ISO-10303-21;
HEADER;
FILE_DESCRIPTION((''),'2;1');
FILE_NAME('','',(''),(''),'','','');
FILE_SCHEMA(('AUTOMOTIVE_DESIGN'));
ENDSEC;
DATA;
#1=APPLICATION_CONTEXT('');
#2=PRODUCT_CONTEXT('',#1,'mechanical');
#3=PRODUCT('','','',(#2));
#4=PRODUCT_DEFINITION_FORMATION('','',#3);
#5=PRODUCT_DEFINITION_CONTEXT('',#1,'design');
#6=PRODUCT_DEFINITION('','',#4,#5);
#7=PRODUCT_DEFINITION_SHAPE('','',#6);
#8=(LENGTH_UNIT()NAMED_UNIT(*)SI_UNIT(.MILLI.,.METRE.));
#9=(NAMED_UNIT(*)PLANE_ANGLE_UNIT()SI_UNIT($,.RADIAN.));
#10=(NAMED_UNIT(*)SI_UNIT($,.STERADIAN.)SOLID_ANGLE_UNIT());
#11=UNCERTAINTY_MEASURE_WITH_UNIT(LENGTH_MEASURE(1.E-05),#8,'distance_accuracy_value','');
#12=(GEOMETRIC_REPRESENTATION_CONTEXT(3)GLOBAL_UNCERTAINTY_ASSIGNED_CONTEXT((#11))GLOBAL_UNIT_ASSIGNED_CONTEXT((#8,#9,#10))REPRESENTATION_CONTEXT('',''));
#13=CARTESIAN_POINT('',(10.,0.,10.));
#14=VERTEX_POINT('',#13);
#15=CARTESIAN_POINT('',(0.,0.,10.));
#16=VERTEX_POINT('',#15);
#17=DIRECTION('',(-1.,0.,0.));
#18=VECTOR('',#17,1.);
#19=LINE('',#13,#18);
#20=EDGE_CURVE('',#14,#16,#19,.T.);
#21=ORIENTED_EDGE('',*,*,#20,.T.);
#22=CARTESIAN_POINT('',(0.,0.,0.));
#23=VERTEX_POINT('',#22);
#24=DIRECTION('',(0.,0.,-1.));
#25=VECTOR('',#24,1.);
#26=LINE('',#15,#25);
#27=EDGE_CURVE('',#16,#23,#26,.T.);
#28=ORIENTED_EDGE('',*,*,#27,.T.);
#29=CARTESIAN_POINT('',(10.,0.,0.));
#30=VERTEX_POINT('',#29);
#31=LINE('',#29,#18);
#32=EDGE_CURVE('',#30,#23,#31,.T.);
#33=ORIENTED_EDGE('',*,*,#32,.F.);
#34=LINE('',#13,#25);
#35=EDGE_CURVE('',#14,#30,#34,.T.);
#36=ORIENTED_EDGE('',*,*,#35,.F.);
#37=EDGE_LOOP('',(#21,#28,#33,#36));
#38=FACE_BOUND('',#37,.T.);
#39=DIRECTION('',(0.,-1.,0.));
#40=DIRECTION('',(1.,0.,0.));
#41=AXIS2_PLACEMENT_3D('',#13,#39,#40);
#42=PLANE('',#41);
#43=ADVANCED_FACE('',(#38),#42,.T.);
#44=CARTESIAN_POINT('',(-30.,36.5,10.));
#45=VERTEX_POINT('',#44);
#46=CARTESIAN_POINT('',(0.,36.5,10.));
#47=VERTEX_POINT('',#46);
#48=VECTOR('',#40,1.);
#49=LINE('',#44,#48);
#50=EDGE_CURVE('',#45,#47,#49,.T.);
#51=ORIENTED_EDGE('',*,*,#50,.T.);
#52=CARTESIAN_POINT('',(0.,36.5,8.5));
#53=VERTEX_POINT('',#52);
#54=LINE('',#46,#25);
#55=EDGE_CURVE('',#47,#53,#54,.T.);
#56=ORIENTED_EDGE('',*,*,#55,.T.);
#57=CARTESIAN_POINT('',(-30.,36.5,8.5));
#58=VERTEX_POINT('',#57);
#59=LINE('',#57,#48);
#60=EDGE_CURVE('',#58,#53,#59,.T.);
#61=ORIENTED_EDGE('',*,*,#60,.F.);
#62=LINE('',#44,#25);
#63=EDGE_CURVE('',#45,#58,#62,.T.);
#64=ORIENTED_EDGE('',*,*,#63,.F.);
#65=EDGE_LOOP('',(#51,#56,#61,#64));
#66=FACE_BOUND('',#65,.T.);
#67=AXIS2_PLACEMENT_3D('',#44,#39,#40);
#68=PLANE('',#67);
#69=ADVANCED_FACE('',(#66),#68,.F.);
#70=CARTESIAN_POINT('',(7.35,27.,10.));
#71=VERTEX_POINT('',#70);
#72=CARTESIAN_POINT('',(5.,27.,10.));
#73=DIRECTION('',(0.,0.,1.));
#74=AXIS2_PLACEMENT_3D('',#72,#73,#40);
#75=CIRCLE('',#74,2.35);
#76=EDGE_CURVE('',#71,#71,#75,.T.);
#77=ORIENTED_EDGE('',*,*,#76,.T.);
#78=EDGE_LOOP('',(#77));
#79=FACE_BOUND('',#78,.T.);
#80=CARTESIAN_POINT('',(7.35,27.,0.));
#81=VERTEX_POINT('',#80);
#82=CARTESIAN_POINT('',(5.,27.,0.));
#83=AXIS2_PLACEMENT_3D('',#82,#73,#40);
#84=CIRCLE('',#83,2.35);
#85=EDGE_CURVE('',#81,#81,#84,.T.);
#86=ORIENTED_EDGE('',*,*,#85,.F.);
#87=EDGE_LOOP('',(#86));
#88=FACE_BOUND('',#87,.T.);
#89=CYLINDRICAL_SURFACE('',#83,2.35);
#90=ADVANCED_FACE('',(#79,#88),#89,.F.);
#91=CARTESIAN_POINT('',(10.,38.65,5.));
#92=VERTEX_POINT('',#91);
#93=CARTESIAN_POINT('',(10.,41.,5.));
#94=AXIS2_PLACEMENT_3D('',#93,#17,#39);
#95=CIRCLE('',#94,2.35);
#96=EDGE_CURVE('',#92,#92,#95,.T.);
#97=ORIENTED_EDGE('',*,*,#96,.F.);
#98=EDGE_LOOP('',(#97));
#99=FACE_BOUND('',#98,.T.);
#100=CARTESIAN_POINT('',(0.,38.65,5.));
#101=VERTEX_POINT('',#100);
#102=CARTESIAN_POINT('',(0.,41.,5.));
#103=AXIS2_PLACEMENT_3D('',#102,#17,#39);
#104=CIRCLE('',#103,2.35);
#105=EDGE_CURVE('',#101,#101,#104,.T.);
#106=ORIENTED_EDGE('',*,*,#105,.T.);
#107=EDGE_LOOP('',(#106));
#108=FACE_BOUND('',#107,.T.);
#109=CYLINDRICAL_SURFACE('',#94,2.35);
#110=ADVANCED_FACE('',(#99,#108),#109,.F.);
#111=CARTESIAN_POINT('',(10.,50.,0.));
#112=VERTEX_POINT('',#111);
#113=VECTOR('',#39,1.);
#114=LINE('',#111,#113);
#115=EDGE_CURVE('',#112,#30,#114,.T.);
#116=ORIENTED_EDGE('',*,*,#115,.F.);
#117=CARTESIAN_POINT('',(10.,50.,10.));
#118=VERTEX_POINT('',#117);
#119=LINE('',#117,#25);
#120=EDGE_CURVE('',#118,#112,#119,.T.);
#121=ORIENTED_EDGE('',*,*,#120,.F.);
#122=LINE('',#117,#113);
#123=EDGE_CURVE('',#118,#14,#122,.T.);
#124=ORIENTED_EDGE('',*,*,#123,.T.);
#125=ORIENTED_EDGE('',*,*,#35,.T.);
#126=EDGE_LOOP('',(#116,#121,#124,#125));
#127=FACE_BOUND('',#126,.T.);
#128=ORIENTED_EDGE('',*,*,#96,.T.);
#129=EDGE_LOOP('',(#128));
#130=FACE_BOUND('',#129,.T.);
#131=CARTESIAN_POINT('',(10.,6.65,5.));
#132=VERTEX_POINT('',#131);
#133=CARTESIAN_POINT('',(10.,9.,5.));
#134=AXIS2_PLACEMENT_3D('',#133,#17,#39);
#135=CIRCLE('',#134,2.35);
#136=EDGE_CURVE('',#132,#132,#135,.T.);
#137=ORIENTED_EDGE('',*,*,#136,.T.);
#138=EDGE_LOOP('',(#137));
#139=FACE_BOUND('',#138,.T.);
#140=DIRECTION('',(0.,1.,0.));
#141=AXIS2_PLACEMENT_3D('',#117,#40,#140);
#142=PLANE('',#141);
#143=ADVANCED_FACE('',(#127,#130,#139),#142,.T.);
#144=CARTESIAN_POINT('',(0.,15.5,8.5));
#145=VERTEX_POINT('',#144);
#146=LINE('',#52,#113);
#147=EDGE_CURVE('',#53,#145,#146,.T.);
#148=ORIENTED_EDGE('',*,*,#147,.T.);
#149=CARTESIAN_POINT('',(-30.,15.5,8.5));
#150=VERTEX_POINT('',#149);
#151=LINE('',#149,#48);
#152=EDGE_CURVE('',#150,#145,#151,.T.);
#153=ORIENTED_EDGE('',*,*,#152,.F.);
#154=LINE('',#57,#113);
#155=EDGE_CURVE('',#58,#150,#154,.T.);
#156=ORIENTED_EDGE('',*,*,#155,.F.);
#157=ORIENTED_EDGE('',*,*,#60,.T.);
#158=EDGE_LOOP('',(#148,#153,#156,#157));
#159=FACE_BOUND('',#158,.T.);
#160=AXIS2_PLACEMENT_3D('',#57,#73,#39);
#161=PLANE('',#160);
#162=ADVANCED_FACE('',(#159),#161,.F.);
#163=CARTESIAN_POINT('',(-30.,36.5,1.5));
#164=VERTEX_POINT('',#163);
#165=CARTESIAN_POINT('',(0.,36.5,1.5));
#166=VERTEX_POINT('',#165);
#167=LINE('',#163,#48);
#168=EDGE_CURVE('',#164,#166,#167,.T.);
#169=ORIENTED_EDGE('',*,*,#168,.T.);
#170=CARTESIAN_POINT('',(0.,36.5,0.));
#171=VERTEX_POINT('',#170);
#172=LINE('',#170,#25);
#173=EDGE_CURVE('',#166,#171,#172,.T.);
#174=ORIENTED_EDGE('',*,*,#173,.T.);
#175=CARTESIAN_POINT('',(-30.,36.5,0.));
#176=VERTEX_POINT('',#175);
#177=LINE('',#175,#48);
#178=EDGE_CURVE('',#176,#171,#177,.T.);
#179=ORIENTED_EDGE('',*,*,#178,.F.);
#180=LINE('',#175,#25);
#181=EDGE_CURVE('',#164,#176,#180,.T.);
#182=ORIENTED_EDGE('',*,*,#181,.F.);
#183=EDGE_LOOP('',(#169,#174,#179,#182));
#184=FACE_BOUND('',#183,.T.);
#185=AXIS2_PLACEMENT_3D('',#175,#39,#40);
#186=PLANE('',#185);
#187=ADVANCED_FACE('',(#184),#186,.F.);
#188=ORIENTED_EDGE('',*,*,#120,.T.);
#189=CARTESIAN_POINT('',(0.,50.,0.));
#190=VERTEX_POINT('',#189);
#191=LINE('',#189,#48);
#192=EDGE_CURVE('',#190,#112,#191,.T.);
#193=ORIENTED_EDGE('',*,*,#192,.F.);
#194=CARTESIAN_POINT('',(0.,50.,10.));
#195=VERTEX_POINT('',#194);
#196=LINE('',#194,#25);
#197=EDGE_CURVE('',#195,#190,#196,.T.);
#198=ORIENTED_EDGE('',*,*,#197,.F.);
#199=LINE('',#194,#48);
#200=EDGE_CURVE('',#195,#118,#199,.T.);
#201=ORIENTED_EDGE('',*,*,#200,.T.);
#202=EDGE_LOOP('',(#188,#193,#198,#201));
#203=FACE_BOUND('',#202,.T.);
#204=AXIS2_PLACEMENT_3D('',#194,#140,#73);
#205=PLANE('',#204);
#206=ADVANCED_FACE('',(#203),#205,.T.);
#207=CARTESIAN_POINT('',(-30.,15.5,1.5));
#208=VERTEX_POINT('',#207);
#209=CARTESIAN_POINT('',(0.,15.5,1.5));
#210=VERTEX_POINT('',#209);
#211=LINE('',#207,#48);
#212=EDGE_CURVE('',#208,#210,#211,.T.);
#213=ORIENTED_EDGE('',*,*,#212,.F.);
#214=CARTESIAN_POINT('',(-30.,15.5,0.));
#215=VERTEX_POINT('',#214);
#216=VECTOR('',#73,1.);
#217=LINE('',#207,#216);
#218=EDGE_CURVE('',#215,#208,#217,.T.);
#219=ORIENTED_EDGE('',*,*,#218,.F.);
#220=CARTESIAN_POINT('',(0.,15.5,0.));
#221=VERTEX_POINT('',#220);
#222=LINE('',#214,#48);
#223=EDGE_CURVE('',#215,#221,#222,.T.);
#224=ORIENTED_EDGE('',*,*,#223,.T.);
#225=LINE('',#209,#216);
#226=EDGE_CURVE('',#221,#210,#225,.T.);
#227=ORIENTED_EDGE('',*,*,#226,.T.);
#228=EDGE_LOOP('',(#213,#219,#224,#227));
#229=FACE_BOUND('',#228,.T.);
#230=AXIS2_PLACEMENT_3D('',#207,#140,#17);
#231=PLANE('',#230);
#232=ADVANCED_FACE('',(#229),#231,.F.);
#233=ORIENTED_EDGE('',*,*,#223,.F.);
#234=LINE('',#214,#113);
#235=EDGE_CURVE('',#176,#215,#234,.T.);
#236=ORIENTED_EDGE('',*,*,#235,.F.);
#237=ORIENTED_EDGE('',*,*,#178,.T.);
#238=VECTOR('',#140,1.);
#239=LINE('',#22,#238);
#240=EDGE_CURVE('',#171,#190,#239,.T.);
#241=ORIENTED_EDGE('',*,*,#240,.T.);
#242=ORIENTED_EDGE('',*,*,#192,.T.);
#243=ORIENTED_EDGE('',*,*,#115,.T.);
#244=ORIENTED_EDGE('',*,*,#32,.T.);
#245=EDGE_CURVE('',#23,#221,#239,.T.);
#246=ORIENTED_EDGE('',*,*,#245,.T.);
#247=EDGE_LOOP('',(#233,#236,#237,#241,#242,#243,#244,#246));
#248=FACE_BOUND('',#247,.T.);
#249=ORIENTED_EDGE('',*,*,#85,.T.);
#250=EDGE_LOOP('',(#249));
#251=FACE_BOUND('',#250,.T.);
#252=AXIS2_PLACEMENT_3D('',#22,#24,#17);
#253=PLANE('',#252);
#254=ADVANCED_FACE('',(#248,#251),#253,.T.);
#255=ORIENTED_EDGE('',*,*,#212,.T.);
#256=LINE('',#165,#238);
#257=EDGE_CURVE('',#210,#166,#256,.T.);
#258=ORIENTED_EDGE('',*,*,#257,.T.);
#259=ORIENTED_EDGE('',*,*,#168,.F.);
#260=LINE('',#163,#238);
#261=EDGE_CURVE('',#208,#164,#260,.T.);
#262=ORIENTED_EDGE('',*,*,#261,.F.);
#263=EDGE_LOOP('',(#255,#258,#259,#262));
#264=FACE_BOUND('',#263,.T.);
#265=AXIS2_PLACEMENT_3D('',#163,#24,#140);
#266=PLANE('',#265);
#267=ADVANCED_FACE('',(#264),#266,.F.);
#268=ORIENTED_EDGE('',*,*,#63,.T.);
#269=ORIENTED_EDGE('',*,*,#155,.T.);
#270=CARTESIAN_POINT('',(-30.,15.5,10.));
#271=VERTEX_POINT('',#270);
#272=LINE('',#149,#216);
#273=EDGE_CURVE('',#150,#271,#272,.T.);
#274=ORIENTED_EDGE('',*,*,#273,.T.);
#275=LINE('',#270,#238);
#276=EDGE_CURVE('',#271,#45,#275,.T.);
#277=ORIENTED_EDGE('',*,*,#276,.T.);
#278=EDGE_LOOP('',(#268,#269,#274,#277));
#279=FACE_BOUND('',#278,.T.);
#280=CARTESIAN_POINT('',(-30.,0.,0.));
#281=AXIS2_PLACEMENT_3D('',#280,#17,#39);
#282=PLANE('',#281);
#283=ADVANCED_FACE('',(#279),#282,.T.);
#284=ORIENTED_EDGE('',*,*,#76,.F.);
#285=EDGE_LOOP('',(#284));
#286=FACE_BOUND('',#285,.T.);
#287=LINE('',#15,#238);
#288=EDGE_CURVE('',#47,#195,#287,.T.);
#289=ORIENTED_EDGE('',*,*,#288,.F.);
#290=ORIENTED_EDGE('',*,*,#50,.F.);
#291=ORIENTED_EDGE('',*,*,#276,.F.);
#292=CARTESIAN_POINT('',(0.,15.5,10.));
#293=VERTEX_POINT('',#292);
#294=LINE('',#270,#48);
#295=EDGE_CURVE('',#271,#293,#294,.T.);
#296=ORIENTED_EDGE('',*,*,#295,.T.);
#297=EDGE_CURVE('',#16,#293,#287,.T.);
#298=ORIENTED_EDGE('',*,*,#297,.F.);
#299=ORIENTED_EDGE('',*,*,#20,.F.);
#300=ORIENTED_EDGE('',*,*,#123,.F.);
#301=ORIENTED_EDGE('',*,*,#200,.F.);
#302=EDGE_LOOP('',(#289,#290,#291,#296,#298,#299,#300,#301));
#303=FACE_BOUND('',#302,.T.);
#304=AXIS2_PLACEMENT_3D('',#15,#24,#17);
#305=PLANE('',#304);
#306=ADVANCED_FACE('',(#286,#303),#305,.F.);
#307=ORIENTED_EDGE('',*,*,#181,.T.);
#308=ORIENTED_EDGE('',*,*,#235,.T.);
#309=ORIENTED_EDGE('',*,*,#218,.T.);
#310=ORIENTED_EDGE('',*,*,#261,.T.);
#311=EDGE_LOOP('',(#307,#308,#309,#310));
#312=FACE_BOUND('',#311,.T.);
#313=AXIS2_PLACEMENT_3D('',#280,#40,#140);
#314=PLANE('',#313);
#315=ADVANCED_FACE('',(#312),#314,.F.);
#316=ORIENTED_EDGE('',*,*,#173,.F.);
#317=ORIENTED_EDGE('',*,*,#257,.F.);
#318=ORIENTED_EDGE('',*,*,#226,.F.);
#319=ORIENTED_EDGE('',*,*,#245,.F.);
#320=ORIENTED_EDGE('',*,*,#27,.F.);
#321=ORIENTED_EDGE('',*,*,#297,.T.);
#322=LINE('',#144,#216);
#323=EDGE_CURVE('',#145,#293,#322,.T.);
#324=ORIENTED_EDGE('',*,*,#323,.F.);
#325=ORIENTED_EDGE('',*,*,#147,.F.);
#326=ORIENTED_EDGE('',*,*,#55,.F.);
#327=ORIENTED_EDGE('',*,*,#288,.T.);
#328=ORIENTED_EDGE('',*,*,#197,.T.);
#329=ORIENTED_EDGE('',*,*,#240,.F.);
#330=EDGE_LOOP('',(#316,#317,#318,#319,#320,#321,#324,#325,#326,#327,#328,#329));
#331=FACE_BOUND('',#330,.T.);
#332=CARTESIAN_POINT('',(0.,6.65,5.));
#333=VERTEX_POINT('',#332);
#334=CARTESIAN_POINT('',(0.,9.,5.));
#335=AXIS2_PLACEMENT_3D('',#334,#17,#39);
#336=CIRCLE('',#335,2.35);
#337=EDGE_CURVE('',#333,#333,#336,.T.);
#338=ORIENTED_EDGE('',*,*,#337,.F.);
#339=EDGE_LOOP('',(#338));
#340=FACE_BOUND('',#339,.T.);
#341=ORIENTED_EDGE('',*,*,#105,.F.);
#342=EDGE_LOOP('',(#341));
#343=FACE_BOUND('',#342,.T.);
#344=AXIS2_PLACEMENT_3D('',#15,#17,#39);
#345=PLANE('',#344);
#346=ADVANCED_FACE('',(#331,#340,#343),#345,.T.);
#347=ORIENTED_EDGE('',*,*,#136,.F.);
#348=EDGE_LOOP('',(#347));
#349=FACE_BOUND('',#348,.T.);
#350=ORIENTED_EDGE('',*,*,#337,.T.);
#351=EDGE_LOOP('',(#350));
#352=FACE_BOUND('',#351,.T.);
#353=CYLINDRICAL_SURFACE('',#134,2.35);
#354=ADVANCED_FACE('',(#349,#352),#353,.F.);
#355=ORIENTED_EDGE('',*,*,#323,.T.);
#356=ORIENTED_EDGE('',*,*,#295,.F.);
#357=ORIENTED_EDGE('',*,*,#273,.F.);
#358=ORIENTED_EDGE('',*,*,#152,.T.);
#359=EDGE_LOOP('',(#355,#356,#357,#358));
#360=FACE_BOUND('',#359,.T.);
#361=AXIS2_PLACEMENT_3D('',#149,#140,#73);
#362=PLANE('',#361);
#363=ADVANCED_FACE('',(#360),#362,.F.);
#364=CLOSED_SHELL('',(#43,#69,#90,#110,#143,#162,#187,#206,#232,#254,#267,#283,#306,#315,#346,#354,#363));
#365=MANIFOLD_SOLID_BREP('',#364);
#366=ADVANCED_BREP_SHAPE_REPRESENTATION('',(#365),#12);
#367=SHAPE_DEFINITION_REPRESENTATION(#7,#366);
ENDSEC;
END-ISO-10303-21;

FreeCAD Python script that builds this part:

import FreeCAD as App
import Part
import Sketcher

doc = App.newDocument("Part")
body = doc.addObject("PartDesign::Body", "Body")

# Sketch on XY plane
sketch1 = body.newObject("Sketcher::SketchObject", "Sketch")
sketch1.AttachmentSupport = (doc.getObject("XY_Plane"), [""])
sketch1.MapMode = "FlatFace"
sketch1.addGeometry([
    Part.LineSegment(App.Vector(0, 50, 0), App.Vector(0, 0, 0)),
    Part.LineSegment(App.Vector(0, 0, 0), App.Vector(10, 0, 0)),
    Part.LineSegment(App.Vector(10, 0, 0), App.Vector(10, 50, 0)),
    Part.LineSegment(App.Vector(10, 50, 0), App.Vector(0, 50, 0)),
], False)
sketch1.addConstraint([
    Sketcher.Constraint("Coincident", 0, 2, 1, 1),
    Sketcher.Constraint("Coincident", 1, 2, 2, 1),
    Sketcher.Constraint("Coincident", 2, 2, 3, 1),
    Sketcher.Constraint("Coincident", 3, 2, 0, 1),
    Sketcher.Constraint("Vertical", 0),
    Sketcher.Constraint("Horizontal", 1),
    Sketcher.Constraint("Vertical", 2),
    Sketcher.Constraint("Horizontal", 3),
    Sketcher.Constraint("Coincident", 0, 2, -1, 1),
    Sketcher.Constraint("DistanceX", 1, 1, 1, 2, 10.0),
    Sketcher.Constraint("DistanceY", 0, 2, 0, 1, 50.0),
])
pad1 = body.newObject("PartDesign::Pad", "Pad")
pad1.Profile = sketch1
pad1.Length = 10

# Sketch on XY plane
sketch2 = body.newObject("Sketcher::SketchObject", "Sketch001")
sketch2.AttachmentSupport = (doc.getObject("XY_Plane"), [""])
sketch2.MapMode = "FlatFace"
sketch2.AttachmentOffset = App.Placement(App.Vector(0, 0, 10), App.Rotation())
sketch2.addGeometry(Part.Circle(App.Vector(5, 27, 0), App.Vector(0, 0, 1), 2.35), False)
sketch2.addConstraint([
    Sketcher.Constraint("Diameter", 0, 4.7),
    Sketcher.Constraint("DistanceX", -1, 1, 0, 3, 5.0),
    Sketcher.Constraint("DistanceY", -1, 1, 0, 3, 27.0),
])
pocket1 = body.newObject("PartDesign::Pocket", "Pocket")
pocket1.Profile = sketch2
pocket1.Type = "ThroughAll"

# Sketch on YZ plane
sketch3 = body.newObject("Sketcher::SketchObject", "Sketch002")
sketch3.AttachmentSupport = (doc.getObject("YZ_Plane"), [""])
sketch3.MapMode = "FlatFace"
sketch3.addGeometry([
    Part.Circle(App.Vector(41, 5, 0), App.Vector(0, 0, 1), 2.35),
    Part.Circle(App.Vector(9, 5, 0), App.Vector(0, 0, 1), 2.35),
], False)
sketch3.addConstraint([
    Sketcher.Constraint("Equal", 0, 1),
    Sketcher.Constraint("Horizontal", 0, 3, 1, 3),
    Sketcher.Constraint("Diameter", 0, 4.7),
    Sketcher.Constraint("DistanceX", -1, 1, 0, 3, 41.0),
    Sketcher.Constraint("DistanceY", -1, 1, 0, 3, 5.0),
    Sketcher.Constraint("DistanceX", -1, 1, 1, 3, 9.0),
])
pocket2 = body.newObject("PartDesign::Pocket", "Pocket001")
pocket2.Profile = sketch3
pocket2.Type = "ThroughAll"
pocket2.Reversed = True

# Sketch on YZ plane
sketch4 = body.newObject("Sketcher::SketchObject", "Sketch003")
sketch4.AttachmentSupport = (doc.getObject("YZ_Plane"), [""])
sketch4.MapMode = "FlatFace"
sketch4.addGeometry([
    Part.LineSegment(App.Vector(36.5, 8.5, 0), App.Vector(15.5, 8.5, 0)),  # 0
    Part.LineSegment(App.Vector(15.5, 8.5, 0), App.Vector(15.5, 10, 0)),  # 1
    Part.LineSegment(App.Vector(15.5, 10, 0), App.Vector(36.5, 10, 0)),  # 2
    Part.LineSegment(App.Vector(36.5, 10, 0), App.Vector(36.5, 8.5, 0)),  # 3
    Part.LineSegment(App.Vector(36.5, 0, 0), App.Vector(15.5, 0, 0)),  # 4
    Part.LineSegment(App.Vector(15.5, 0, 0), App.Vector(15.5, 1.5, 0)),  # 5
    Part.LineSegment(App.Vector(15.5, 1.5, 0), App.Vector(36.5, 1.5, 0)),  # 6
    Part.LineSegment(App.Vector(36.5, 1.5, 0), App.Vector(36.5, 0, 0)),  # 7
], False)
sketch4.addConstraint([
    Sketcher.Constraint("Coincident", 0, 2, 1, 1),
    Sketcher.Constraint("Coincident", 1, 2, 2, 1),
    Sketcher.Constraint("Coincident", 2, 2, 3, 1),
    Sketcher.Constraint("Coincident", 3, 2, 0, 1),
    Sketcher.Constraint("Coincident", 4, 2, 5, 1),
    Sketcher.Constraint("Coincident", 5, 2, 6, 1),
    Sketcher.Constraint("Coincident", 6, 2, 7, 1),
    Sketcher.Constraint("Coincident", 7, 2, 4, 1),
    Sketcher.Constraint("Horizontal", 0),
    Sketcher.Constraint("Vertical", 1),
    Sketcher.Constraint("Horizontal", 2),
    Sketcher.Constraint("Vertical", 3),
    Sketcher.Constraint("Horizontal", 4),
    Sketcher.Constraint("Vertical", 5),
    Sketcher.Constraint("Horizontal", 6),
    Sketcher.Constraint("Vertical", 7),
    Sketcher.Constraint("PointOnObject", 4, 2, -1),
    Sketcher.Constraint("Vertical", 1, 2, 4, 2),
    Sketcher.Constraint("Vertical", 3, 2, 6, 2),
    Sketcher.Constraint("Equal", 3, 5),
    Sketcher.Constraint("DistanceX", 0, 2, 0, 1, 21.0),
    Sketcher.Constraint("DistanceY", 1, 1, 1, 2, 1.5),
    Sketcher.Constraint("DistanceY", -1, 1, 1, 2, 10.0),
    Sketcher.Constraint("DistanceX", -1, 1, 0, 2, 15.5),
])
pad2 = body.newObject("PartDesign::Pad", "Pad001")
pad2.Profile = sketch4
pad2.Length = 30
pad2.Reversed = True

doc.recompute()
